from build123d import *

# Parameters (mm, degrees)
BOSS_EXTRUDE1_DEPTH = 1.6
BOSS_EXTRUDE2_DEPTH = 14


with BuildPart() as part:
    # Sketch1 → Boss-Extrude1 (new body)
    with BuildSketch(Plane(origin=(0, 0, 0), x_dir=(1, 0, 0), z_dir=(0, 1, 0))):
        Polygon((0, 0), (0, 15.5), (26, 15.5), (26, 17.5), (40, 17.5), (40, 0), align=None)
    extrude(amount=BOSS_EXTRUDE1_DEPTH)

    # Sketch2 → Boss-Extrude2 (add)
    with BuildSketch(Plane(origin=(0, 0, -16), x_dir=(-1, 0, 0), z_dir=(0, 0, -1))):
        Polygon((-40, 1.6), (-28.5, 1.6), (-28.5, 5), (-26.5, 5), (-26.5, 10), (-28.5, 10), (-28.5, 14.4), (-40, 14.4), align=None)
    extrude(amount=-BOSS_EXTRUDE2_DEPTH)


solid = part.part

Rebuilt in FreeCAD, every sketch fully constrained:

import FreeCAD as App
import Part
import Sketcher

V = App.Vector

doc = App.newDocument("Part")
body = doc.addObject("PartDesign::Body", "Body")

sketch1 = body.newObject("Sketcher::SketchObject", "Sketch")
sketch1.AttachmentSupport = (doc.getObject("XZ_Plane"), [""])
sketch1.MapMode = "FlatFace"
sketch1.addGeometry([
    Part.LineSegment(V(0, -15.5, 0), V(0, 0, 0)),
    Part.LineSegment(V(0, 0, 0), V(40, 0, 0)),
    Part.LineSegment(V(40, 0, 0), V(40, -17.5, 0)),
    Part.LineSegment(V(40, -17.5, 0), V(26, -17.5, 0)),
    Part.LineSegment(V(26, -17.5, 0), V(26, -15.5, 0)),
    Part.LineSegment(V(26, -15.5, 0), V(0, -15.5, 0)),
], False)
sketch1.addConstraint([
    Sketcher.Constraint("Coincident", 0, 2, 1, 1),
    Sketcher.Constraint("Coincident", 1, 2, 2, 1),
    Sketcher.Constraint("Coincident", 2, 2, 3, 1),
    Sketcher.Constraint("Coincident", 3, 2, 4, 1),
    Sketcher.Constraint("Coincident", 4, 2, 5, 1),
    Sketcher.Constraint("Coincident", 5, 2, 0, 1),
    Sketcher.Constraint("Vertical", 0),
    Sketcher.Constraint("Horizontal", 1),
    Sketcher.Constraint("Vertical", 2),
    Sketcher.Constraint("Horizontal", 3),
    Sketcher.Constraint("Vertical", 4),
    Sketcher.Constraint("Horizontal", 5),
    Sketcher.Constraint("Coincident", 0, 2, -1, 1),
    Sketcher.Constraint("DistanceX", 1, 1, 1, 2, 40.0),
    Sketcher.Constraint("DistanceX", 3, 2, 3, 1, 14.0),
    Sketcher.Constraint("DistanceY", 4, 1, 4, 2, 2.0),
    Sketcher.Constraint("DistanceY", 0, 1, 0, 2, 15.5),
])
pad1 = body.newObject("PartDesign::Pad", "Pad")
pad1.Profile = sketch1
pad1.Length = 1.6
pad1.Reversed = True

sketch2 = body.newObject("Sketcher::SketchObject", "Sketch001")
sketch2.AttachmentSupport = (doc.getObject("XY_Plane"), [""])
sketch2.MapMode = "FlatFace"
sketch2.AttachmentOffset = App.Placement(V(0, 0, -16), App.Rotation())
sketch2.addGeometry([
    Part.LineSegment(V(40, 1.6, 0), V(28.5, 1.6, 0)),
    Part.LineSegment(V(28.5, 1.6, 0), V(28.5, 5, 0)),
    Part.LineSegment(V(28.5, 5, 0), V(26.5, 5, 0)),
    Part.LineSegment(V(26.5, 5, 0), V(26.5, 10, 0)),
    Part.LineSegment(V(26.5, 10, 0), V(28.5, 10, 0)),
    Part.LineSegment(V(28.5, 10, 0), V(28.5, 14.4, 0)),
    Part.LineSegment(V(28.5, 14.4, 0), V(40, 14.4, 0)),
    Part.LineSegment(V(40, 14.4, 0), V(40, 1.6, 0)),
], False)
sketch2.addConstraint([
    Sketcher.Constraint("Coincident", 0, 2, 1, 1),
    Sketcher.Constraint("Coincident", 1, 2, 2, 1),
    Sketcher.Constraint("Coincident", 2, 2, 3, 1),
    Sketcher.Constraint("Coincident", 3, 2, 4, 1),
    Sketcher.Constraint("Coincident", 4, 2, 5, 1),
    Sketcher.Constraint("Coincident", 5, 2, 6, 1),
    Sketcher.Constraint("Coincident", 6, 2, 7, 1),
    Sketcher.Constraint("Coincident", 7, 2, 0, 1),
    Sketcher.Constraint("Horizontal", 0),
    Sketcher.Constraint("Vertical", 1),
    Sketcher.Constraint("Horizontal", 2),
    Sketcher.Constraint("Vertical", 3),
    Sketcher.Constraint("Horizontal", 4),
    Sketcher.Constraint("Vertical", 5),
    Sketcher.Constraint("Horizontal", 6),
    Sketcher.Constraint("Vertical", 7),
    Sketcher.Constraint("Vertical", 1, 2, 4, 2),
    Sketcher.Constraint("DistanceX", 2, 2, 2, 1, 2.0),
    Sketcher.Constraint("DistanceY", 3, 1, 3, 2, 5.0),
    Sketcher.Constraint("DistanceX", 0, 2, 0, 1, 11.5),
    Sketcher.Constraint("DistanceY", 1, 1, 1, 2, 3.4),
    Sketcher.Constraint("DistanceY", 5, 1, 5, 2, 4.4),
    Sketcher.Constraint("DistanceY", -1, 1, 1, 2, 5.0),
    Sketcher.Constraint("DistanceX", -1, 1, 6, 2, 40.0),
])
pad2 = body.newObject("PartDesign::Pad", "Pad001")
pad2.Profile = sketch2
pad2.Length = 14

doc.recompute()
